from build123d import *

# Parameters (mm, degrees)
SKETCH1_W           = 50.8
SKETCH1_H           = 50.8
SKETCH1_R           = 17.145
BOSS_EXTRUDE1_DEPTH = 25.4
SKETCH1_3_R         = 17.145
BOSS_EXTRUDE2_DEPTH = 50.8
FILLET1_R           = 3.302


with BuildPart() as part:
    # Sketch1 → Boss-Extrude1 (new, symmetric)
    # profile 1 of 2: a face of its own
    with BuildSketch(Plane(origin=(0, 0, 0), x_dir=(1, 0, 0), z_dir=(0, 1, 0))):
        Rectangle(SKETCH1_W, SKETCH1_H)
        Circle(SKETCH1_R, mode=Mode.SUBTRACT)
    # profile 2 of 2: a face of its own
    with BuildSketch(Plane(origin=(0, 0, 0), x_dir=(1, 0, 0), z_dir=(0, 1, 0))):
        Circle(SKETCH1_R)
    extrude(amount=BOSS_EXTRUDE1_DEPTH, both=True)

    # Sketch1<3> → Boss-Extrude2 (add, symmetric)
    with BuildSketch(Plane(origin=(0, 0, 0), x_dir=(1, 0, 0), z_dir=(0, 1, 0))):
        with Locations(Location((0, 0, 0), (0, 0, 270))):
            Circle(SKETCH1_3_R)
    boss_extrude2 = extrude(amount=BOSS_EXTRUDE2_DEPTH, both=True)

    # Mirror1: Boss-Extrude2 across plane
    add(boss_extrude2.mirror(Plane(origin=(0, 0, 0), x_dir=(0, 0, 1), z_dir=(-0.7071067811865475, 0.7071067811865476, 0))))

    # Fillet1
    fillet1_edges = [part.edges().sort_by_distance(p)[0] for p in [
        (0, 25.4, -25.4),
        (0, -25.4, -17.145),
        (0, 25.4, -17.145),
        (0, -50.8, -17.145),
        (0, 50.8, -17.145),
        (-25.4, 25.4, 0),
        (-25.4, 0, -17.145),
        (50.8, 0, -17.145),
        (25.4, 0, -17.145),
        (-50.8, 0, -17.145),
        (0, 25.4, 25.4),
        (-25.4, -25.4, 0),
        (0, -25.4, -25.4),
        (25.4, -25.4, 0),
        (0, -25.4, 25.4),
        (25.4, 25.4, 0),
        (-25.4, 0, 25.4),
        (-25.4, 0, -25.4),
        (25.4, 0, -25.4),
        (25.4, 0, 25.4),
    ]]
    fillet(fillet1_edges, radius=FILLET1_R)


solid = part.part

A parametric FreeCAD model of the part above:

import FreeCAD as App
import Part
import Sketcher
from FreeCAD import Vector
Q = App.Units.Quantity

doc = App.newDocument("Part")
body = doc.addObject("PartDesign::Body", "Body")

# Sketch on XZ plane
sketch1 = body.newObject("Sketcher::SketchObject", "Sketch")
sketch1.AttachmentSupport = (doc.getObject("XZ_Plane"), [""])
sketch1.MapMode = "FlatFace"
sketch1.addGeometry(Part.LineSegment(Vector(-25, -25, 0), Vector(-25, 25, 0)), False)
sketch1.addGeometry(Part.LineSegment(Vector(-25, 25, 0), Vector(25, 25, 0)), False)
sketch1.addGeometry(Part.LineSegment(Vector(25, 25, 0), Vector(25, -25, 0)), False)
sketch1.addGeometry(Part.LineSegment(Vector(25, -25, 0), Vector(-25, -25, 0)), False)
sketch1.addConstraint(Sketcher.Constraint("Coincident", 0, 2, 1, 1))
sketch1.addConstraint(Sketcher.Constraint("Coincident", 1, 2, 2, 1))
sketch1.addConstraint(Sketcher.Constraint("Coincident", 2, 2, 3, 1))
sketch1.addConstraint(Sketcher.Constraint("Coincident", 3, 2, 0, 1))
sketch1.addConstraint(Sketcher.Constraint("Vertical", 0))
sketch1.addConstraint(Sketcher.Constraint("Horizontal", 1))
sketch1.addConstraint(Sketcher.Constraint("Vertical", 2))
sketch1.addConstraint(Sketcher.Constraint("Horizontal", 3))
sketch1.addConstraint(Sketcher.Constraint("Symmetric", 0, 2, 2, 2, -1, 1))
sketch1.addConstraint(Sketcher.Constraint("Equal", 3, 0))
sketch1.addConstraint(Sketcher.Constraint("DistanceX", 1, 1, 1, 2, Q("2 in")))
pad1 = body.newObject("PartDesign::Pad", "Pad")
pad1.Profile = sketch1
pad1.Length = Q("2 in")
pad1.Midplane = True

# Sketch on XZ plane
sketch2 = body.newObject("Sketcher::SketchObject", "Sketch001")
sketch2.AttachmentSupport = (doc.getObject("XZ_Plane"), [""])
sketch2.MapMode = "FlatFace"
sketch2.addGeometry(Part.Circle(Vector(0, 0, 0), Vector(0, 0, 1), 17), False)
sketch2.addConstraint(Sketcher.Constraint("Coincident", 0, 3, -1, 1))
sketch2.addConstraint(Sketcher.Constraint("Diameter", 0, Q("1.35 in")))
pad2 = body.newObject("PartDesign::Pad", "Pad001")
pad2.Profile = sketch2
pad2.Length = Q("4 in")
pad2.Midplane = True
doc.recompute()

datumplane = body.newObject("PartDesign::Plane", "DatumPlane")
datumplane.Placement = App.Placement(Vector(0, 0, 0), App.Rotation(Vector(0.707106781, 0.707106781, 0), Vector(0, 0, -1), Vector(-0.707106781, 0.707106781, 0), "ZXY"))
mirrored = body.newObject("PartDesign::Mirrored", "Mirrored")
mirrored.Originals = [pad2]
mirrored.MirrorPlane = (datumplane, [""])
body.Tip = mirrored
doc.recompute()

fillet = body.newObject("PartDesign::Fillet", "Fillet")
fillet.Base = (mirrored, ["Edge1"])
fillet.UseAllEdges = True
fillet.Radius = Q("0.13 in")

doc.recompute()
